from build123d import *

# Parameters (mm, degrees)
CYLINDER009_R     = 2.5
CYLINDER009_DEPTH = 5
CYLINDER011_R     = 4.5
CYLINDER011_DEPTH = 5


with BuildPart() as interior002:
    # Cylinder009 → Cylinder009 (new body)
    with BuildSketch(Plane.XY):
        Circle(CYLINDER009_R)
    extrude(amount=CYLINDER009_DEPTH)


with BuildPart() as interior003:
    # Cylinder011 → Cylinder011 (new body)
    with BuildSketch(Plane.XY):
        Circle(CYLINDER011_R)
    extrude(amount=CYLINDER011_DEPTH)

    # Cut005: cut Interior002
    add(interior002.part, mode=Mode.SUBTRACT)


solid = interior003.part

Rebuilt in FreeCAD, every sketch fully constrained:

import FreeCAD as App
import Part
import Sketcher

V = App.Vector

doc = App.newDocument("Part")
body = doc.addObject("PartDesign::Body", "Body")

sketch1 = body.newObject("Sketcher::SketchObject", "Sketch")
sketch1.AttachmentSupport = (doc.getObject("XY_Plane"), [""])
sketch1.MapMode = "FlatFace"
sketch1.addGeometry(Part.Circle(V(0, 0, 0), V(0, 0, 1), 2.5), False)
sketch1.addConstraint([
    Sketcher.Constraint("Coincident", 0, 3, -1, 1),
    Sketcher.Constraint("Diameter", 0, 5.0),
])
pad1 = body.newObject("PartDesign::Pad", "Pad")
pad1.Profile = sketch1
pad1.Length = 5
body2 = doc.addObject("PartDesign::Body", "Body001")

sketch2 = body2.newObject("Sketcher::SketchObject", "Sketch001")
sketch2.AttachmentSupport = (doc.getObject("XY_Plane001"), [""])
sketch2.MapMode = "FlatFace"
sketch2.addGeometry(Part.Circle(V(0, 0, 0), V(0, 0, 1), 4.5), False)
sketch2.addConstraint([
    Sketcher.Constraint("Coincident", 0, 3, -1, 1),
    Sketcher.Constraint("Diameter", 0, 9.0),
])
pad2 = body2.newObject("PartDesign::Pad", "Pad001")
pad2.Profile = sketch2
pad2.Length = 5
doc.recompute()

boolean = body2.newObject("PartDesign::Boolean", "Boolean")
boolean.Type = "Cut"
boolean.addObjects([body])

doc.recompute()
